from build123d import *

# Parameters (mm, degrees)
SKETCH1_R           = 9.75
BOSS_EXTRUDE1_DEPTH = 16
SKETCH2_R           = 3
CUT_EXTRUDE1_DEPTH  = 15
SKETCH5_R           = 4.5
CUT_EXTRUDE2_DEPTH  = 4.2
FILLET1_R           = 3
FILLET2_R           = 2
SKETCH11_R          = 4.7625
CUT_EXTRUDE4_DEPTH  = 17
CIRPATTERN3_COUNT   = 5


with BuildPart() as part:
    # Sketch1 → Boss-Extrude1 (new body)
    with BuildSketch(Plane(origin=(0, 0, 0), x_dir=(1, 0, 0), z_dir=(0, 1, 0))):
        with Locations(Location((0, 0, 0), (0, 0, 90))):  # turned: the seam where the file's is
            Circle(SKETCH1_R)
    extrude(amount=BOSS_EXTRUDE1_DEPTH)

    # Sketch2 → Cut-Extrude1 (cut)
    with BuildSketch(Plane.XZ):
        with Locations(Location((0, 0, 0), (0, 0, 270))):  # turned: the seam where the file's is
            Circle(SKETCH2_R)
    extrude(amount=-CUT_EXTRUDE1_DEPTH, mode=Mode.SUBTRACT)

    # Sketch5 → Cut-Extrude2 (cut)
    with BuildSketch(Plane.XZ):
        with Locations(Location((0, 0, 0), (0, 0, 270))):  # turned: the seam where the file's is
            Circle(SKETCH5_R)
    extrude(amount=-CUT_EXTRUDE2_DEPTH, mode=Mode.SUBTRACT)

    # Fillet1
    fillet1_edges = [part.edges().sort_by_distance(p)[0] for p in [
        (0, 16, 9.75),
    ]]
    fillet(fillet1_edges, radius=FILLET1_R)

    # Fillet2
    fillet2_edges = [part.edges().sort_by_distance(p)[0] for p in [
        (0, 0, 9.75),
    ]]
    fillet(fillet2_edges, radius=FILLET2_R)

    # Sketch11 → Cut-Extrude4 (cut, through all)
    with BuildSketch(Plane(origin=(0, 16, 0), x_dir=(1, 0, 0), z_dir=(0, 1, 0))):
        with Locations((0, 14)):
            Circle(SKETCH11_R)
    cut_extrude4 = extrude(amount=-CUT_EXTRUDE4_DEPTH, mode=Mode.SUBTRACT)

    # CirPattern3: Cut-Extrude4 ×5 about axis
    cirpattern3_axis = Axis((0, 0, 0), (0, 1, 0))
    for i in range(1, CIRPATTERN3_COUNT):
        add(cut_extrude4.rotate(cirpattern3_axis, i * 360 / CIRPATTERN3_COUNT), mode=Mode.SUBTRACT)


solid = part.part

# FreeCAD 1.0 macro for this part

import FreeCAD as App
import Part
import Sketcher

V = App.Vector
Q = App.Units.Quantity


def edges_at(feature, points):
    """Names of the edges that pass closest to the given points."""
    edges = feature.Shape.Edges
    near = lambda p: min(range(len(edges)), key=lambda i: edges[i].distToShape(Part.Vertex(*p))[0])
    return sorted({f"Edge{near(p) + 1}" for p in points})

doc = App.newDocument("Part")
body = doc.addObject("PartDesign::Body", "Body")

# Sketch on XZ plane
sketch1 = body.newObject("Sketcher::SketchObject", "Sketch")
sketch1.AttachmentSupport = (doc.getObject("XZ_Plane"), [""])
sketch1.MapMode = "FlatFace"
sketch1.addGeometry(Part.Circle(V(0, 0, 0), V(0, 0, 1), 10), False)
sketch1.addConstraint([
    Sketcher.Constraint("Coincident", 0, 3, -1, 1),
    Sketcher.Constraint("Diameter", 0, Q("19.5 mm")),
])
pad1 = body.newObject("PartDesign::Pad", "Pad")
pad1.Profile = sketch1
pad1.Length = 16
pad1.Reversed = True

# Sketch on XZ plane
sketch2 = body.newObject("Sketcher::SketchObject", "Sketch001")
sketch2.AttachmentSupport = (doc.getObject("XZ_Plane"), [""])
sketch2.MapMode = "FlatFace"
sketch2.addGeometry(Part.Circle(V(0, 0, 0), V(0, 0, 1), 3), False)
sketch2.addConstraint([
    Sketcher.Constraint("Coincident", 0, 3, -1, 1),
    Sketcher.Constraint("Diameter", 0, Q("6 mm")),
])
pocket1 = body.newObject("PartDesign::Pocket", "Pocket")
pocket1.Profile = sketch2
pocket1.Length = 15

# Sketch on XZ plane
sketch3 = body.newObject("Sketcher::SketchObject", "Sketch002")
sketch3.AttachmentSupport = (doc.getObject("XZ_Plane"), [""])
sketch3.MapMode = "FlatFace"
sketch3.addGeometry(Part.Circle(V(0, 0, 0), V(0, 0, 1), 4.5), False)
sketch3.addConstraint([
    Sketcher.Constraint("Coincident", 0, 3, -1, 1),
    Sketcher.Constraint("Diameter", 0, Q("9 mm")),
])
pocket2 = body.newObject("PartDesign::Pocket", "Pocket001")
pocket2.Profile = sketch3
pocket2.Length = 4.2
doc.recompute()

fillet = body.newObject("PartDesign::Fillet", "Fillet")
fillet.Base = (pocket2, edges_at(pocket2, [(0, 16, 9.75)]))
fillet.Radius = 3
doc.recompute()

fillet2 = body.newObject("PartDesign::Fillet", "Fillet001")
fillet2.Base = (fillet, edges_at(fillet, [(0, 0, 9.75)]))
fillet2.Radius = 2

# Sketch on XZ plane
sketch4 = body.newObject("Sketcher::SketchObject", "Sketch003")
sketch4.AttachmentSupport = (doc.getObject("XZ_Plane"), [""])
sketch4.MapMode = "FlatFace"
sketch4.AttachmentOffset = App.Placement(V(0, 0, -16), App.Rotation())
sketch4.addGeometry(Part.Circle(V(0, -14, 0), V(0, 0, 1), 4.8), False)
sketch4.addConstraint([
    Sketcher.Constraint("PointOnObject", 0, 3, -2),
    Sketcher.Constraint("Diameter", 0, Q("9.525 mm")),
    Sketcher.Constraint("DistanceY", 0, 3, -1, 1, Q("14 mm")),
])
pocket3 = body.newObject("PartDesign::Pocket", "Pocket002")
pocket3.Profile = sketch4
pocket3.Type = "ThroughAll"
pocket3.Reversed = True
doc.recompute()

polarpattern = body.newObject("PartDesign::PolarPattern", "PolarPattern")
polarpattern.Originals = [pocket3]
polarpattern.Axis = (doc.getObject("Y_Axis"), [""])
polarpattern.Angle = 360
polarpattern.Occurrences = 5
body.Tip = polarpattern

doc.recompute()
